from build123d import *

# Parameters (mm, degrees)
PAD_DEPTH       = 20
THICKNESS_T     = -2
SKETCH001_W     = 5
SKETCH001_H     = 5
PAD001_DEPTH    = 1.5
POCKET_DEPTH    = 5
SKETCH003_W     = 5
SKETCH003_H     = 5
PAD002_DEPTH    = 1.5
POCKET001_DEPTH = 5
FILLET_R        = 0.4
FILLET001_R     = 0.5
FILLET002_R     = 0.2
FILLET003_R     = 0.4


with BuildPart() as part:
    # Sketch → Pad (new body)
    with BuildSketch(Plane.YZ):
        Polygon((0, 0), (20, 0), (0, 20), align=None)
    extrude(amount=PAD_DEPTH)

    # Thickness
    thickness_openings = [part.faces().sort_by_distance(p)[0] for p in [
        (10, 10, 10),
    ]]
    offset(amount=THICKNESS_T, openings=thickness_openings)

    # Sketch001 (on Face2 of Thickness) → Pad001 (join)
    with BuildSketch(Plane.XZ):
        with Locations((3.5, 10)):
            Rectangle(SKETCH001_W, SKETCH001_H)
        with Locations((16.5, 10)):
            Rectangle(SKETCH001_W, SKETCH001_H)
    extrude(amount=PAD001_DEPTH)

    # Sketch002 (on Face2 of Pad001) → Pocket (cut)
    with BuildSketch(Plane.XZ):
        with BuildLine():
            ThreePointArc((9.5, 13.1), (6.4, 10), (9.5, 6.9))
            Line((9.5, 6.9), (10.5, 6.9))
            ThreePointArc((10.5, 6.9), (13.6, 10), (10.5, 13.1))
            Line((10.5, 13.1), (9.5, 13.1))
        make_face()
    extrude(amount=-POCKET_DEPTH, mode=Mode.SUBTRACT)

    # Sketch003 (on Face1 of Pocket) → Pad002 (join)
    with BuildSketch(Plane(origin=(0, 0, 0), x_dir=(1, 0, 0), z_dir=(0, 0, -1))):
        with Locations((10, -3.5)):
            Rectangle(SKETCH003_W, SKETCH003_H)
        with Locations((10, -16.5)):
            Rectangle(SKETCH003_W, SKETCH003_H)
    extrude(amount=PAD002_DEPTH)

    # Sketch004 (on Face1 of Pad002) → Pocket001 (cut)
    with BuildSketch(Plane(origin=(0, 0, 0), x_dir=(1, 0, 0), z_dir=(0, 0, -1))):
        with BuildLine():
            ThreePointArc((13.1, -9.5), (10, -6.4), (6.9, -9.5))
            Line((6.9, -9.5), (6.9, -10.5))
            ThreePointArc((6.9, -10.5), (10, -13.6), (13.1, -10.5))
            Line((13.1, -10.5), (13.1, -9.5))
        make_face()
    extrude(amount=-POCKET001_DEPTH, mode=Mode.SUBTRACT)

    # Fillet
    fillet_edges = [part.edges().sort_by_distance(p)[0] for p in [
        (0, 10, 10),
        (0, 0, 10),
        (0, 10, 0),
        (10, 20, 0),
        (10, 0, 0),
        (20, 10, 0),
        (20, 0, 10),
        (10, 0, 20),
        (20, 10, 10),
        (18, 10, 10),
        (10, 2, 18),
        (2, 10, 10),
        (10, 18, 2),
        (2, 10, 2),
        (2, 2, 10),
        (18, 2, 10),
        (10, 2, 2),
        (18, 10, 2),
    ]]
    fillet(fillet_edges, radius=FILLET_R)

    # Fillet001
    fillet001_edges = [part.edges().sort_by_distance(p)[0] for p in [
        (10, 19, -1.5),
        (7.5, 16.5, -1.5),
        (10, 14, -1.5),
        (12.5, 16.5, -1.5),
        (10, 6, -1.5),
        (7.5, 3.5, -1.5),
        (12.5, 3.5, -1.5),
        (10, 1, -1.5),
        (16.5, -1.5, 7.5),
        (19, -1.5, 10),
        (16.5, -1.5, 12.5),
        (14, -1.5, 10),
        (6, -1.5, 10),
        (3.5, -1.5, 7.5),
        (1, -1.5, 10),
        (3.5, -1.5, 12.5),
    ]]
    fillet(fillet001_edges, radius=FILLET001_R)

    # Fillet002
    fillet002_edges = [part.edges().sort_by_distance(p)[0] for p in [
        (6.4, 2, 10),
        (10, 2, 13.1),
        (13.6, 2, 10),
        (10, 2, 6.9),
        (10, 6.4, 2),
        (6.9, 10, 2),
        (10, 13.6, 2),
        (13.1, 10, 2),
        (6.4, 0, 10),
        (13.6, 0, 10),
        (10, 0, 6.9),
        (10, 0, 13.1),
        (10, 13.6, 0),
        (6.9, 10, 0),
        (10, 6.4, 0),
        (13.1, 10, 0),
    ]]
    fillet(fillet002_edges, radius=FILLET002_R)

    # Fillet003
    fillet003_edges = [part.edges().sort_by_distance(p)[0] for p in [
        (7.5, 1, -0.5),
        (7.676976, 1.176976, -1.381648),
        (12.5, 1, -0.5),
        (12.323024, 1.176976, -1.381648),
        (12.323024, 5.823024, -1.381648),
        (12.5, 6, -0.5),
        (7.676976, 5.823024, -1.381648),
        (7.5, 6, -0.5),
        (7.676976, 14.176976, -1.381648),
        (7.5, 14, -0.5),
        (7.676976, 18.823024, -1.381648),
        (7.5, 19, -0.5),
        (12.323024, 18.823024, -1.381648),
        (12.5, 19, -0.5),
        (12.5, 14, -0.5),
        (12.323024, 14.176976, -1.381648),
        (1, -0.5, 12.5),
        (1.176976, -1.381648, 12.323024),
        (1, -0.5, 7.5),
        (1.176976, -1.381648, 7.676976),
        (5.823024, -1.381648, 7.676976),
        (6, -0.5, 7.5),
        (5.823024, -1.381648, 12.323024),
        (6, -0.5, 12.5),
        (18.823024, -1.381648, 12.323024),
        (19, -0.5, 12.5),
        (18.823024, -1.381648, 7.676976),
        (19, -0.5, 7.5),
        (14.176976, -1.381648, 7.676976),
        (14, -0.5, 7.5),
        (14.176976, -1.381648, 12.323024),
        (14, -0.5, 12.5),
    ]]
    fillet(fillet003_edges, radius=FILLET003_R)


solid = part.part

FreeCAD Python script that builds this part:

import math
import FreeCAD as App
import Part
import Sketcher
from FreeCAD import Vector
Q = App.Units.Quantity


def edges_at(feature, points):
    """Names of the edges that pass closest to the given points."""
    edges = feature.Shape.Edges
    near = lambda p: min(range(len(edges)), key=lambda i: edges[i].distToShape(Part.Vertex(*p))[0])
    return sorted({f"Edge{near(p) + 1}" for p in points})


def faces_at(feature, points):
    """Names of the faces that lie closest to the given points."""
    faces = feature.Shape.Faces
    near = lambda p: min(range(len(faces)), key=lambda i: faces[i].distToShape(Part.Vertex(*p))[0])
    return sorted({f"Face{near(p) + 1}" for p in points})

doc = App.newDocument("Part")
body = doc.addObject("PartDesign::Body", "Body")

sketch1 = doc.addObject("Sketcher::SketchObject", "Sketch")
body.addObject(sketch1)
sketch1.AttachmentSupport = (doc.YZ_Plane, [""])
sketch1.MapMode = "FlatFace"
sketch1.addGeometry([
    Part.LineSegment(Vector(0, 0, 0), Vector(20, 0, 0)),
    Part.LineSegment(Vector(20, 0, 0), Vector(0, 20, 0)),
    Part.LineSegment(Vector(0, 20, 0), Vector(0, 0, 0)),
], False)
sketch1.addConstraint([
    Sketcher.Constraint("Coincident", 0, 2, 1, 1),
    Sketcher.Constraint("Coincident", 1, 2, 2, 1),
    Sketcher.Constraint("Coincident", 2, 2, 0, 1),
    Sketcher.Constraint("Horizontal", 0),
    Sketcher.Constraint("Vertical", 2),
    Sketcher.Constraint("Coincident", 2, 2, -1, 1),
    Sketcher.Constraint("Equal", 0, 2),
    Sketcher.Constraint("DistanceX", 0, 1, 0, 2, Q("20 mm")),
])
pad1 = doc.addObject("PartDesign::Pad", "Pad")
body.addObject(pad1)
pad1.Profile = sketch1
pad1.Length = 20
doc.recompute()

thickness = doc.addObject("PartDesign::Thickness", "Thickness")
body.addObject(thickness)
thickness.Base = (pad1, faces_at(pad1, [(10, 10, 10)]))
thickness.Value = 2
thickness.Reversed = True
thickness.Join = "Arc"

sketch2 = doc.addObject("Sketcher::SketchObject", "Sketch001")
body.addObject(sketch2)
sketch2.AttachmentSupport = (doc.XZ_Plane, [""])
sketch2.MapMode = "FlatFace"
sketch2.addGeometry([
    Part.LineSegment(Vector(1, 12, 0), Vector(1, 8, 0)),
    Part.LineSegment(Vector(1, 8, 0), Vector(6, 8, 0)),
    Part.LineSegment(Vector(6, 8, 0), Vector(6, 12, 0)),
    Part.LineSegment(Vector(6, 12, 0), Vector(1, 12, 0)),
    Part.LineSegment(Vector(14, 12, 0), Vector(14, 8, 0)),
    Part.LineSegment(Vector(14, 8, 0), Vector(19, 8, 0)),
    Part.LineSegment(Vector(19, 8, 0), Vector(19, 12, 0)),
    Part.LineSegment(Vector(19, 12, 0), Vector(14, 12, 0)),
], False)
sketch2.addConstraint([
    Sketcher.Constraint("Coincident", 0, 2, 1, 1),
    Sketcher.Constraint("Coincident", 1, 2, 2, 1),
    Sketcher.Constraint("Coincident", 2, 2, 3, 1),
    Sketcher.Constraint("Coincident", 3, 2, 0, 1),
    Sketcher.Constraint("Coincident", 4, 2, 5, 1),
    Sketcher.Constraint("Coincident", 5, 2, 6, 1),
    Sketcher.Constraint("Coincident", 6, 2, 7, 1),
    Sketcher.Constraint("Coincident", 7, 2, 4, 1),
    Sketcher.Constraint("Vertical", 0),
    Sketcher.Constraint("Horizontal", 1),
    Sketcher.Constraint("Vertical", 2),
    Sketcher.Constraint("Horizontal", 3),
    Sketcher.Constraint("Vertical", 4),
    Sketcher.Constraint("Horizontal", 5),
    Sketcher.Constraint("Vertical", 6),
    Sketcher.Constraint("Horizontal", 7),
    Sketcher.Constraint("Horizontal", 1, 2, 4, 2),
    Sketcher.Constraint("Horizontal", 3, 2, 6, 2),
    Sketcher.Constraint("Equal", 3, 5),
    Sketcher.Constraint("Equal", 7, 0),
    Sketcher.Constraint("DistanceX", 1, 1, 1, 2, Q("5 mm")),
    Sketcher.Constraint("DistanceX", -1, 1, 0, 2, Q("1 mm")),
    Sketcher.Constraint("DistanceX", -1, 1, 4, 2, Q("14 mm")),
    Sketcher.Constraint("DistanceY", -1, 1, 0, 2, Q("7.5 mm")),
])
pad2 = doc.addObject("PartDesign::Pad", "Pad001")
body.addObject(pad2)
pad2.Profile = sketch2
pad2.Length = 1.5

sketch3 = doc.addObject("Sketcher::SketchObject", "Sketch002")
body.addObject(sketch3)
sketch3.AttachmentSupport = (doc.XZ_Plane, [""])
sketch3.MapMode = "FlatFace"
sketch3.addGeometry([
    Part.ArcOfCircle(Part.Circle(Vector(9.5, 10, 0), Vector(0, 0, 1), 3.1), math.radians(90), math.radians(270)),
    Part.LineSegment(Vector(9.5, 6.9, 0), Vector(10.5, 6.9, 0)),
    Part.ArcOfCircle(Part.Circle(Vector(10.5, 10, 0), Vector(0, 0, 1), 3.1), math.radians(-90), math.radians(90)),
    Part.LineSegment(Vector(10.5, 13.1, 0), Vector(9.5, 13.1, 0)),
], False)
sketch3.addConstraint([
    Sketcher.Constraint("Tangent", 0, 2, 1, 1),
    Sketcher.Constraint("Tangent", 1, 2, 2, 1),
    Sketcher.Constraint("Tangent", 2, 2, 3, 1),
    Sketcher.Constraint("Tangent", 3, 2, 0, 1),
    Sketcher.Constraint("Horizontal", 1),
    Sketcher.Constraint("Horizontal", 3),
    Sketcher.Constraint("Radius", 0, Q("3.1 mm")),
    Sketcher.Constraint("DistanceX", 1, 1, 1, 2, Q("1 mm")),
    Sketcher.Constraint("DistanceY", -1, 1, 0, 3, Q("10 mm")),
    Sketcher.Constraint("DistanceX", -1, 1, 0, 3, Q("9.5 mm")),
])
pocket1 = doc.addObject("PartDesign::Pocket", "Pocket")
body.addObject(pocket1)
pocket1.Profile = sketch3
pocket1.Length = 5

sketch4 = doc.addObject("Sketcher::SketchObject", "Sketch003")
body.addObject(sketch4)
sketch4.AttachmentSupport = (doc.XY_Plane, [""])
sketch4.MapMode = "FlatFace"
sketch4.addGeometry([
    Part.LineSegment(Vector(8, 1, 0), Vector(8, 6, 0)),
    Part.LineSegment(Vector(8, 6, 0), Vector(12, 6, 0)),
    Part.LineSegment(Vector(12, 6, 0), Vector(12, 1, 0)),
    Part.LineSegment(Vector(12, 1, 0), Vector(8, 1, 0)),
    Part.LineSegment(Vector(8, 14, 0), Vector(8, 19, 0)),
    Part.LineSegment(Vector(8, 19, 0), Vector(12, 19, 0)),
    Part.LineSegment(Vector(12, 19, 0), Vector(12, 14, 0)),
    Part.LineSegment(Vector(12, 14, 0), Vector(8, 14, 0)),
], False)
sketch4.addConstraint([
    Sketcher.Constraint("Coincident", 0, 2, 1, 1),
    Sketcher.Constraint("Coincident", 1, 2, 2, 1),
    Sketcher.Constraint("Coincident", 2, 2, 3, 1),
    Sketcher.Constraint("Coincident", 3, 2, 0, 1),
    Sketcher.Constraint("Coincident", 4, 2, 5, 1),
    Sketcher.Constraint("Coincident", 5, 2, 6, 1),
    Sketcher.Constraint("Coincident", 6, 2, 7, 1),
    Sketcher.Constraint("Coincident", 7, 2, 4, 1),
    Sketcher.Constraint("Vertical", 0),
    Sketcher.Constraint("Horizontal", 1),
    Sketcher.Constraint("Vertical", 2),
    Sketcher.Constraint("Horizontal", 3),
    Sketcher.Constraint("Vertical", 4),
    Sketcher.Constraint("Horizontal", 5),
    Sketcher.Constraint("Vertical", 6),
    Sketcher.Constraint("Horizontal", 7),
    Sketcher.Constraint("Vertical", 3, 2, 4, 2),
    Sketcher.Constraint("Vertical", 2, 2, 5, 2),
    Sketcher.Constraint("Equal", 7, 0),
    Sketcher.Constraint("Equal", 2, 4),
    Sketcher.Constraint("DistanceX", 1, 1, 1, 2, Q("5 mm")),
    Sketcher.Constraint("DistanceY", -1, 1, 0, 2, Q("6 mm")),
    Sketcher.Constraint("DistanceY", -1, 1, 4, 2, Q("19 mm")),
    Sketcher.Constraint("DistanceX", -1, 1, 0, 2, Q("7.5 mm")),
])
pad3 = doc.addObject("PartDesign::Pad", "Pad002")
body.addObject(pad3)
pad3.Profile = sketch4
pad3.Length = 1.5
pad3.Reversed = True

sketch5 = doc.addObject("Sketcher::SketchObject", "Sketch004")
body.addObject(sketch5)
sketch5.AttachmentSupport = (doc.XY_Plane, [""])
sketch5.MapMode = "FlatFace"
sketch5.addGeometry([
    Part.ArcOfCircle(Part.Circle(Vector(10, 9.5, 0), Vector(0, 0, 1), 3.1), math.radians(180), math.radians(360)),
    Part.LineSegment(Vector(6.9, 9.5, 0), Vector(6.9, 10.5, 0)),
    Part.ArcOfCircle(Part.Circle(Vector(10, 10.5, 0), Vector(0, 0, 1), 3.1), math.radians(0), math.radians(180)),
    Part.LineSegment(Vector(13.1, 10.5, 0), Vector(13.1, 9.5, 0)),
], False)
sketch5.addConstraint([
    Sketcher.Constraint("Tangent", 0, 1, 1, 1),
    Sketcher.Constraint("Tangent", 1, 2, 2, 2),
    Sketcher.Constraint("Tangent", 2, 1, 3, 1),
    Sketcher.Constraint("Tangent", 3, 2, 0, 2),
    Sketcher.Constraint("Vertical", 1),
    Sketcher.Constraint("Vertical", 3),
    Sketcher.Constraint("Radius", 0, Q("3.1 mm")),
    Sketcher.Constraint("DistanceY", 1, 1, 1, 2, Q("1 mm")),
    Sketcher.Constraint("DistanceX", -1, 1, 0, 3, Q("10 mm")),
    Sketcher.Constraint("DistanceY", -1, 1, 0, 3, Q("9.5 mm")),
])
pocket2 = doc.addObject("PartDesign::Pocket", "Pocket001")
body.addObject(pocket2)
pocket2.Profile = sketch5
pocket2.Length = 5
pocket2.Reversed = True
doc.recompute()

fillet = doc.addObject("PartDesign::Fillet", "Fillet")
body.addObject(fillet)
fillet.Base = (pocket2, edges_at(pocket2, [
    (0, 10, 10),
    (0, 0, 10),
    (0, 10, 0),
    (10, 20, 0),
    (10, 0, 0),
    (20, 10, 0),
    (20, 0, 10),
    (10, 0, 20),
    (20, 10, 10),
    (18, 10, 10),
    (10, 2, 18),
    (2, 10, 10),
    (10, 18, 2),
    (2, 10, 2),
    (2, 2, 10),
    (18, 2, 10),
    (10, 2, 2),
    (18, 10, 2),
]))
fillet.Radius = 0.4
doc.recompute()

fillet2 = doc.addObject("PartDesign::Fillet", "Fillet001")
body.addObject(fillet2)
fillet2.Base = (fillet, edges_at(fillet, [
    (10, 19, -1.5),
    (7.5, 16.5, -1.5),
    (10, 14, -1.5),
    (12.5, 16.5, -1.5),
    (10, 6, -1.5),
    (7.5, 3.5, -1.5),
    (12.5, 3.5, -1.5),
    (10, 1, -1.5),
    (16.5, -1.5, 7.5),
    (19, -1.5, 10),
    (16.5, -1.5, 12.5),
    (14, -1.5, 10),
    (6, -1.5, 10),
    (3.5, -1.5, 7.5),
    (1, -1.5, 10),
    (3.5, -1.5, 12.5),
]))
fillet2.Radius = 0.5
doc.recompute()

fillet3 = doc.addObject("PartDesign::Fillet", "Fillet002")
body.addObject(fillet3)
fillet3.Base = (fillet2, edges_at(fillet2, [
    (6.4, 2, 10),
    (10, 2, 13.1),
    (13.6, 2, 10),
    (10, 2, 6.9),
    (10, 6.4, 2),
    (6.9, 10, 2),
    (10, 13.6, 2),
    (13.1, 10, 2),
    (6.4, 0, 10),
    (13.6, 0, 10),
    (10, 0, 6.9),
    (10, 0, 13.1),
    (10, 13.6, 0),
    (6.9, 10, 0),
    (10, 6.4, 0),
    (13.1, 10, 0),
]))
fillet3.Radius = 0.2
doc.recompute()

fillet4 = doc.addObject("PartDesign::Fillet", "Fillet003")
body.addObject(fillet4)
fillet4.Base = (fillet3, edges_at(fillet3, [
    (7.5, 1, -0.5),
    (7.677, 1.177, -1.382),
    (12.5, 1, -0.5),
    (12.323, 1.177, -1.382),
    (12.323, 5.823, -1.382),
    (12.5, 6, -0.5),
    (7.677, 5.823, -1.382),
    (7.5, 6, -0.5),
    (7.677, 14.177, -1.382),
    (7.5, 14, -0.5),
    (7.677, 18.823, -1.382),
    (7.5, 19, -0.5),
    (12.323, 18.823, -1.382),
    (12.5, 19, -0.5),
    (12.5, 14, -0.5),
    (12.323, 14.177, -1.382),
    (1, -0.5, 12.5),
    (1.177, -1.382, 12.323),
    (1, -0.5, 7.5),
    (1.177, -1.382, 7.677),
    (5.823, -1.382, 7.677),
    (6, -0.5, 7.5),
    (5.823, -1.382, 12.323),
    (6, -0.5, 12.5),
    (18.823, -1.382, 12.323),
    (19, -0.5, 12.5),
    (18.823, -1.382, 7.677),
    (19, -0.5, 7.5),
    (14.177, -1.382, 7.677),
    (14, -0.5, 7.5),
    (14.177, -1.382, 12.323),
    (14, -0.5, 12.5),
]))
fillet4.Radius = 0.4

doc.recompute()
